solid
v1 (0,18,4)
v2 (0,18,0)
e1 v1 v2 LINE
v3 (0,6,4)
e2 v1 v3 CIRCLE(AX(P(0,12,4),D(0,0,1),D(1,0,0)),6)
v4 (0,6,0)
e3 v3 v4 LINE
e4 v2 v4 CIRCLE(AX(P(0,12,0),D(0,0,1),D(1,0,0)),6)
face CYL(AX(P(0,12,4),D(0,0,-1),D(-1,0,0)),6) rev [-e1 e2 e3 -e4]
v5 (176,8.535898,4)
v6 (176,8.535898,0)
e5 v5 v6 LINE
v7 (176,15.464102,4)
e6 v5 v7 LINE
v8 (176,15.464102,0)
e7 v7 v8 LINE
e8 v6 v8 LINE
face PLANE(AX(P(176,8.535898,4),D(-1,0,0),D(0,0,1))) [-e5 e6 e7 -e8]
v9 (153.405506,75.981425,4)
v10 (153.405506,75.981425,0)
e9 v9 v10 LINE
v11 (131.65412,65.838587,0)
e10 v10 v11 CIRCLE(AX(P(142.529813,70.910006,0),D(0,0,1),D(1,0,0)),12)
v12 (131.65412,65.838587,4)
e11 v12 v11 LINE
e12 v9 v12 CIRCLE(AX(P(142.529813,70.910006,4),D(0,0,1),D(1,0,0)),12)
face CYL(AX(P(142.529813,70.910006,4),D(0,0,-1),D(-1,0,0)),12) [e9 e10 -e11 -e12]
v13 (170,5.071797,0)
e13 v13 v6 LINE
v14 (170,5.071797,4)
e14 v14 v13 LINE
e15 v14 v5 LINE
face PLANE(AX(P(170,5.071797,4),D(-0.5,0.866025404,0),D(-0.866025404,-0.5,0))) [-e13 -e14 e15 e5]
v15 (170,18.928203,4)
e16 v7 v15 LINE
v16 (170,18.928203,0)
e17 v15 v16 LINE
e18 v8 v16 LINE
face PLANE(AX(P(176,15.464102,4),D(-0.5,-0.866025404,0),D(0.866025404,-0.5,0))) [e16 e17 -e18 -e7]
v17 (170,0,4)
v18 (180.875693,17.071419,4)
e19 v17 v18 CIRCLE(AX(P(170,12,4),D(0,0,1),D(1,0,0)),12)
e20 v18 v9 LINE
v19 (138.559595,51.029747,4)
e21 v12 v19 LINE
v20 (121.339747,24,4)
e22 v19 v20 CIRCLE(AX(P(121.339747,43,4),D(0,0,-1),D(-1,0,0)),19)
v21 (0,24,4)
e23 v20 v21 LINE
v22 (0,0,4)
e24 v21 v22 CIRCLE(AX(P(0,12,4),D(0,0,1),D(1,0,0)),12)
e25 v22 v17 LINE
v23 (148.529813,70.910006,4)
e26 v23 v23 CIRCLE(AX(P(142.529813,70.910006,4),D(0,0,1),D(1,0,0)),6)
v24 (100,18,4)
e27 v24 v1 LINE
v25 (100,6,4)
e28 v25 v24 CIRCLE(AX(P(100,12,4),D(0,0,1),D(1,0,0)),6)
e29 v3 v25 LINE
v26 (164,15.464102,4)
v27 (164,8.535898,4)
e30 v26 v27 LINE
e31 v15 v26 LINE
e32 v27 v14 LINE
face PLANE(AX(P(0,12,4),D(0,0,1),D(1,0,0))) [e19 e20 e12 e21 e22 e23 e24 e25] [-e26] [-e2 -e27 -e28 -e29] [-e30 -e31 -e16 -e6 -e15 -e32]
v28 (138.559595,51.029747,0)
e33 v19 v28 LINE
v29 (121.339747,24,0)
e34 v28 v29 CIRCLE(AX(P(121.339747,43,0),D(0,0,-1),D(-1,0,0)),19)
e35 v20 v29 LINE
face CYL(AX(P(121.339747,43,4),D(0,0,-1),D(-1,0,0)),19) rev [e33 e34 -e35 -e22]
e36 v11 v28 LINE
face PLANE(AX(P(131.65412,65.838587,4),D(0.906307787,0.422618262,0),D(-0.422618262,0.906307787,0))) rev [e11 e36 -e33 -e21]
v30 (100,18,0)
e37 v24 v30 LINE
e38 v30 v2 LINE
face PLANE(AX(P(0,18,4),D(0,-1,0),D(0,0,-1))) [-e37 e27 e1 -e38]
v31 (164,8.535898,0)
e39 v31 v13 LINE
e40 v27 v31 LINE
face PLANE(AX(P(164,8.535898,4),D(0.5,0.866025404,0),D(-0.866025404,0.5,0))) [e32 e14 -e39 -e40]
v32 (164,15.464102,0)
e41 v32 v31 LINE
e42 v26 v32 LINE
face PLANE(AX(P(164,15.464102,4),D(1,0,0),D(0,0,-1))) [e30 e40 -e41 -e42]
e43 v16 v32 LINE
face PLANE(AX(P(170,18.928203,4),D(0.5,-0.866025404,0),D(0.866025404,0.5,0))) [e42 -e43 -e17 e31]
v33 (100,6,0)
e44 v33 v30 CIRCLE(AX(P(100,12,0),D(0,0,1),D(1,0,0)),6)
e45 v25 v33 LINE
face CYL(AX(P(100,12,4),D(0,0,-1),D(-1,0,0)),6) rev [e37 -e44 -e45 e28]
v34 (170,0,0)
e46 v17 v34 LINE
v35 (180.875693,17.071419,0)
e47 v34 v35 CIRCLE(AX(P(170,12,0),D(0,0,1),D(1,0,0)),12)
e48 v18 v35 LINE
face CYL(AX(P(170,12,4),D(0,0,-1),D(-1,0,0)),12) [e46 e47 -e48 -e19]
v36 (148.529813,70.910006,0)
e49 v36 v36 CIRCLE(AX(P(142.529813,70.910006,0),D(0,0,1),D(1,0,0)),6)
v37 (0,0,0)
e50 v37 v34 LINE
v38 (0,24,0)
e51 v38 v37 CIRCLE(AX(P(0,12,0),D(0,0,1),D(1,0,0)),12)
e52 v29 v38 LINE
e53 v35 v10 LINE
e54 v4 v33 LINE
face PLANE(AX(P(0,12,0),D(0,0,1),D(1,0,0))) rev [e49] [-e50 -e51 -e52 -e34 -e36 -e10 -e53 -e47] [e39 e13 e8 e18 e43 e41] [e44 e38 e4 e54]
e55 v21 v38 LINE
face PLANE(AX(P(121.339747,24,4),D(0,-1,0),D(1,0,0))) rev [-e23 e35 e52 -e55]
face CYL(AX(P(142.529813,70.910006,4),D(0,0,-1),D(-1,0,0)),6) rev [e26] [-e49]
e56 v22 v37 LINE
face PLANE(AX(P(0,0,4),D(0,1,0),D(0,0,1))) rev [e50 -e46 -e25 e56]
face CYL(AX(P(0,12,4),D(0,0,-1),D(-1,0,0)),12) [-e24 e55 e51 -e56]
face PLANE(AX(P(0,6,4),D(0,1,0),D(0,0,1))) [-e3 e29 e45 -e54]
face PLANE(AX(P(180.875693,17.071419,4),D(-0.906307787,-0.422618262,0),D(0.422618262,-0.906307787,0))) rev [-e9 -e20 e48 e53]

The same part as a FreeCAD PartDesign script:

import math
import FreeCAD as App
import Part
import Sketcher
Q = App.Units.Quantity

doc = App.newDocument("Part")
body = doc.addObject("PartDesign::Body", "Body")

sketch1 = body.newObject("Sketcher::SketchObject", "Sketch")
sketch1.AttachmentSupport = (doc.getObject("XY_Plane"), [""])
sketch1.MapMode = "FlatFace"
sketch1.addGeometry([
    Part.LineSegment(App.Vector(0, 0, 0), App.Vector(170, 0, 0)),
    Part.ArcOfCircle(Part.Circle(App.Vector(170, 12, 0), App.Vector(0, 0, 1), 12), math.radians(-90), math.radians(25)),
    Part.LineSegment(App.Vector(181, 17, 0), App.Vector(153, 76, 0)),
    Part.ArcOfCircle(Part.Circle(App.Vector(143, 71, 0), App.Vector(0, 0, 1), 12), math.radians(25), math.radians(205)),
    Part.LineSegment(App.Vector(132, 66, 0), App.Vector(139, 51, 0)),
    Part.ArcOfCircle(Part.Circle(App.Vector(121, 43, 0), App.Vector(0, 0, 1), 19), math.radians(-90), math.radians(25)),
    Part.LineSegment(App.Vector(121, 24, 0), App.Vector(0, 24, 0)),
    Part.ArcOfCircle(Part.Circle(App.Vector(0, 12, 0), App.Vector(0, 0, 1), 12), math.radians(90), math.radians(270)),
    Part.ArcOfCircle(Part.Circle(App.Vector(0, 12, 0), App.Vector(0, 0, 1), 6), math.radians(90), math.radians(270)),
    Part.LineSegment(App.Vector(0, 18, 0), App.Vector(100, 18, 0)),
    Part.ArcOfCircle(Part.Circle(App.Vector(100, 12, 0), App.Vector(0, 0, 1), 6), math.radians(-90), math.radians(90)),
    Part.LineSegment(App.Vector(100, 6, 0), App.Vector(0, 6, 0)),
    Part.LineSegment(App.Vector(164, 15, 0), App.Vector(170, 19, 0)),
    Part.LineSegment(App.Vector(170, 19, 0), App.Vector(176, 15, 0)),
    Part.LineSegment(App.Vector(176, 15, 0), App.Vector(176, 9, 0)),
    Part.LineSegment(App.Vector(176, 9, 0), App.Vector(170, 5, 0)),
    Part.LineSegment(App.Vector(170, 5, 0), App.Vector(164, 9, 0)),
    Part.LineSegment(App.Vector(164, 9, 0), App.Vector(164, 15, 0)),
    Part.Circle(App.Vector(143, 71, 0), App.Vector(0, 0, 1), 6),
], False)
sketch1.addConstraint([
    Sketcher.Constraint("Tangent", 0, 2, 1, 1),
    Sketcher.Constraint("Tangent", 1, 2, 2, 1),
    Sketcher.Constraint("Tangent", 2, 2, 3, 1),
    Sketcher.Constraint("Tangent", 3, 2, 4, 1),
    Sketcher.Constraint("Tangent", 4, 2, 5, 2),
    Sketcher.Constraint("Tangent", 5, 1, 6, 1),
    Sketcher.Constraint("Tangent", 6, 2, 7, 1),
    Sketcher.Constraint("Tangent", 7, 2, 0, 1),
    Sketcher.Constraint("Tangent", 8, 1, 9, 1),
    Sketcher.Constraint("Tangent", 9, 2, 10, 2),
    Sketcher.Constraint("Tangent", 10, 1, 11, 1),
    Sketcher.Constraint("Tangent", 11, 2, 8, 2),
    Sketcher.Constraint("Coincident", 12, 2, 13, 1),
    Sketcher.Constraint("Coincident", 13, 2, 14, 1),
    Sketcher.Constraint("Coincident", 14, 2, 15, 1),
    Sketcher.Constraint("Coincident", 15, 2, 16, 1),
    Sketcher.Constraint("Coincident", 16, 2, 17, 1),
    Sketcher.Constraint("Coincident", 17, 2, 12, 1),
    Sketcher.Constraint("Horizontal", 0),
    Sketcher.Constraint("Horizontal", 6),
    Sketcher.Constraint("Horizontal", 9),
    Sketcher.Constraint("Horizontal", 11),
    Sketcher.Constraint("Vertical", 14),
    Sketcher.Constraint("Vertical", 17),
    Sketcher.Constraint("Coincident", 7, 2, -1, 1),
    Sketcher.Constraint("Coincident", 8, 3, 7, 3),
    Sketcher.Constraint("Coincident", 18, 3, 3, 3),
    Sketcher.Constraint("Equal", 1, 3),
    Sketcher.Constraint("Equal", 3, 7),
    Sketcher.Constraint("Equal", 10, 18),
    Sketcher.Constraint("Parallel", 2, 4),
    Sketcher.Constraint("Parallel", 12, 15),
    Sketcher.Constraint("Parallel", 13, 16),
    Sketcher.Constraint("Horizontal", 14, 2, 16, 2),
    Sketcher.Constraint("Horizontal", 13, 2, 17, 2),
    Sketcher.Constraint("Vertical", 0, 2, 12, 2),
    Sketcher.Constraint("Vertical", 12, 2, 15, 2),
    Sketcher.Constraint("Diameter", 18, Q("12 mm")),
    Sketcher.Constraint("Radius", 1, Q("12 mm")),
    Sketcher.Constraint("Radius", 5, Q("19 mm")),
    Sketcher.Constraint("DistanceX", 0, 1, 0, 2, Q("170 mm")),
    Sketcher.Constraint("DistanceX", 9, 1, 9, 2, Q("100 mm")),
    Sketcher.Constraint("Angle", 2, Q("115 deg")),
    Sketcher.Constraint("Angle", 12, Q("30 deg")),
    Sketcher.Constraint("Distance", 2, Q("65 mm")),
    Sketcher.Constraint("DistanceX", -1, 1, 13, 2, Q("176 mm")),
    Sketcher.Constraint("DistanceY", -1, 1, 13, 2, Q("15.464102 mm")),
    Sketcher.Constraint("DistanceY", -1, 1, 14, 2, Q("8.535898 mm")),
])
pad1 = body.newObject("PartDesign::Pad", "Pad")
pad1.Profile = sketch1
pad1.Length = 4

doc.recompute()
